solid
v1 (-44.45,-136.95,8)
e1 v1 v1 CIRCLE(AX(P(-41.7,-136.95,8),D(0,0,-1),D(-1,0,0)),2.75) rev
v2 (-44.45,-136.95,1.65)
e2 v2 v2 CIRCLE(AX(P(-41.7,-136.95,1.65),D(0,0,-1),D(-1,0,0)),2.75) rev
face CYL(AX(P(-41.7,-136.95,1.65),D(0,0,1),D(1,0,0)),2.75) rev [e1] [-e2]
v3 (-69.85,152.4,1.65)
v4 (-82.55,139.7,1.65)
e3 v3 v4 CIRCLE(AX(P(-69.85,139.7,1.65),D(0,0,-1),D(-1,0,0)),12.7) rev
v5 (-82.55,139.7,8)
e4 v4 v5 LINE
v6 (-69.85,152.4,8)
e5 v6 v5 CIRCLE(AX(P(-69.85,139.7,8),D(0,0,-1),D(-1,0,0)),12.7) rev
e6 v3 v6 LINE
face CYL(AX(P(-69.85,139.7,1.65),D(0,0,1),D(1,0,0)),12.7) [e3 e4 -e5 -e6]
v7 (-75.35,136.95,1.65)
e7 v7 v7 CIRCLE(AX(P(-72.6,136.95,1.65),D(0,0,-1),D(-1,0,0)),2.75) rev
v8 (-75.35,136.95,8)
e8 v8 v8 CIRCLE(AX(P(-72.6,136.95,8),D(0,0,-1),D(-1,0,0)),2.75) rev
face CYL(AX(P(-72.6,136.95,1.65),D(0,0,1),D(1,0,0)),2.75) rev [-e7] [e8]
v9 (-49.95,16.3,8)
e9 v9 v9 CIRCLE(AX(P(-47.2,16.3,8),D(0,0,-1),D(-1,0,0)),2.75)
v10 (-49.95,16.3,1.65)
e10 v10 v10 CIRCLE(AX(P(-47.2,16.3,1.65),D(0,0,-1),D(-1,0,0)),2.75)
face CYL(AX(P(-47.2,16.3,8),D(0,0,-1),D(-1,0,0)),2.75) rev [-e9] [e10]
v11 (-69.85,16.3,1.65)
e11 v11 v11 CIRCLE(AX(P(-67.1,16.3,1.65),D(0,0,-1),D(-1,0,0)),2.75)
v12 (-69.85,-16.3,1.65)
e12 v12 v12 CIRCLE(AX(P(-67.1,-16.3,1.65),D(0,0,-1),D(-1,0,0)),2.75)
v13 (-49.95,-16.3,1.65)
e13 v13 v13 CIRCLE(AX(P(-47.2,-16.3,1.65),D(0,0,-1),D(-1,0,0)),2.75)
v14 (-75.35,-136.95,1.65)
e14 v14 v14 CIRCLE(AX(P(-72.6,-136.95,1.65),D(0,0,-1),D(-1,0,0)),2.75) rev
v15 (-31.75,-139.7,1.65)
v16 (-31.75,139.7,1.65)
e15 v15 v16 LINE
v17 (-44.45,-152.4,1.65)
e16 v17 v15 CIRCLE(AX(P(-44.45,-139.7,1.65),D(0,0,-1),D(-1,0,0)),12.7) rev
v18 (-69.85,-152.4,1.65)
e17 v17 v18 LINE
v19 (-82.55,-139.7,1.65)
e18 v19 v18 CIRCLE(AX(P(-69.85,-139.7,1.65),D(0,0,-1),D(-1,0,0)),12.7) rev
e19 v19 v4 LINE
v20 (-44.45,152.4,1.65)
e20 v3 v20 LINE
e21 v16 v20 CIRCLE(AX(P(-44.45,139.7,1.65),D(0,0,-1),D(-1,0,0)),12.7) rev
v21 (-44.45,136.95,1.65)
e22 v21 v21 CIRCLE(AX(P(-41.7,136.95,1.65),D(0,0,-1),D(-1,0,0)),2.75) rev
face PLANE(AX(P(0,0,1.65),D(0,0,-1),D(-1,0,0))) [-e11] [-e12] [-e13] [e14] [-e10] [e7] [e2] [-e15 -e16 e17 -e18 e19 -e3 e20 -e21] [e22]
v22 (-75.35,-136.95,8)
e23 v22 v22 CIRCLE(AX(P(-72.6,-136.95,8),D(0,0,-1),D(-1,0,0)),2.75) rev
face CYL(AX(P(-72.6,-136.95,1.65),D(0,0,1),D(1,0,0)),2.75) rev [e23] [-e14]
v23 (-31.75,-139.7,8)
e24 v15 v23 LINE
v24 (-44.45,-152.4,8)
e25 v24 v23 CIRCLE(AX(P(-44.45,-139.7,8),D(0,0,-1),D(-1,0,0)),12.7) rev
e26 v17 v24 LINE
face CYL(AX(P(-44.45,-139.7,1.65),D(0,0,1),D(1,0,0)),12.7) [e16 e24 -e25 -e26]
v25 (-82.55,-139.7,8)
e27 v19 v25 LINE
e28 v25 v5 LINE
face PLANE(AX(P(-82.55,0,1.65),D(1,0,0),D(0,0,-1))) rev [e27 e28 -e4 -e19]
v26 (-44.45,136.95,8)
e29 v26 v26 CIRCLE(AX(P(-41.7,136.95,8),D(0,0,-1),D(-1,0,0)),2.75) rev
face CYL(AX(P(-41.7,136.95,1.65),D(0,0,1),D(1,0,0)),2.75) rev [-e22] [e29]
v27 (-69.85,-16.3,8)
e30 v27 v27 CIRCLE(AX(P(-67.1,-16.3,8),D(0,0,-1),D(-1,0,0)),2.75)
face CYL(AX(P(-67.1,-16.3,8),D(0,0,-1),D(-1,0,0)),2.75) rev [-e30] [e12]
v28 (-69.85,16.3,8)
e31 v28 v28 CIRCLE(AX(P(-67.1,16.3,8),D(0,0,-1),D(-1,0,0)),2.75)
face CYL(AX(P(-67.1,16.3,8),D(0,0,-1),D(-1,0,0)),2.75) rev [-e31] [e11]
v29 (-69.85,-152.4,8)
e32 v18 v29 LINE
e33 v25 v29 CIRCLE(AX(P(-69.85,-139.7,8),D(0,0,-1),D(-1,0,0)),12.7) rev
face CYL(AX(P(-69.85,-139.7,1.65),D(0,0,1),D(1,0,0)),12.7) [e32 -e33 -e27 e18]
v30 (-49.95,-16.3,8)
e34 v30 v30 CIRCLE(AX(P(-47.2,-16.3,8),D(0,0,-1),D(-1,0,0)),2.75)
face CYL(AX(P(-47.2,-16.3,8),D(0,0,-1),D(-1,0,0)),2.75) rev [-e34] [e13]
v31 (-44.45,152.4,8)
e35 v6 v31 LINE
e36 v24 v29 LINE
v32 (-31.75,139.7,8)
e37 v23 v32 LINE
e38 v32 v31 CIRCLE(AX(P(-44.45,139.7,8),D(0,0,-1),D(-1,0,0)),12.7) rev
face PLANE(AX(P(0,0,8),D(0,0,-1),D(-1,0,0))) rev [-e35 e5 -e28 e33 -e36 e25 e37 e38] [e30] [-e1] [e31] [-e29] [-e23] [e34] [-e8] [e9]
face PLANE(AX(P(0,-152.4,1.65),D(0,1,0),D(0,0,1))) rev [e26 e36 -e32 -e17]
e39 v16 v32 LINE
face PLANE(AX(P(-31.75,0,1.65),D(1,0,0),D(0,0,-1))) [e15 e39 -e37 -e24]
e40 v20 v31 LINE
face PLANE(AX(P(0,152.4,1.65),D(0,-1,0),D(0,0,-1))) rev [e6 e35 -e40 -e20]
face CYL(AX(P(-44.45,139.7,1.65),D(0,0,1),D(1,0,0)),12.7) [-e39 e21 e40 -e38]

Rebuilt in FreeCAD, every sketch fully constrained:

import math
import FreeCAD as App
import Part
import Sketcher
Q = App.Units.Quantity


def add_polygon(sketch, points):
    """Adds a closed chain of lines whose ends are joined by coincident constraints."""
    first, n = sketch.GeometryCount, len(points)
    for a, b in zip(points, points[1:] + points[:1]):
        sketch.addGeometry(Part.LineSegment(App.Vector(*a, 0), App.Vector(*b, 0)), False)
    for i in range(n):
        sketch.addConstraint(Sketcher.Constraint("Coincident", first + i, 2, first + (i + 1) % n, 1))

doc = App.newDocument("Part")
params = doc.addObject("Spreadsheet::Sheet", "Params")
for row, (alias, value) in enumerate([
    ("sketch1_radius", "0.5 in"),
    ("sketch1_width", "1 in"),
    ("sketch1_height", "11 in"),
    ("sketch1_width2", "0.6 in"),
    ("pad1_length", "0.25 in"),
    ("sketch3_height", "11 in"),
    ("sketch3_width", "0.6 in"),
    ("pad2_length", "0.25 in"),
], start=1):
    params.set(f"A{row}", alias)
    params.set(f"B{row}", "=" + value)
    params.setAlias(f"B{row}", alias)

body = doc.addObject("PartDesign::Body", "Body")

sketch1 = doc.addObject("Sketcher::SketchObject", "Sketch")
body.addObject(sketch1)
sketch1.AttachmentSupport = (doc.XY_Plane, [""])
sketch1.MapMode = "FlatFace"
sketch1.AttachmentOffset = App.Placement(App.Vector(0, 0, 8), App.Rotation())
sketch1.addGeometry(Part.LineSegment(App.Vector(-69.8, -152.4, 0), App.Vector(-44.5, -152.4, 0)), False)
sketch1.addGeometry(Part.ArcOfCircle(Part.Circle(App.Vector(-44.5, -139.7, 0), App.Vector(0, 0, 1), 12.7), math.radians(-90), math.radians(0)), False)
sketch1.addGeometry(Part.LineSegment(App.Vector(-31.8, -139.7, 0), App.Vector(-31.8, 139.7, 0)), False)
sketch1.addGeometry(Part.ArcOfCircle(Part.Circle(App.Vector(-44.5, 139.7, 0), App.Vector(0, 0, 1), 12.7), math.radians(0), math.radians(90)), False)
sketch1.addGeometry(Part.LineSegment(App.Vector(-44.5, 152.4, 0), App.Vector(-69.8, 152.4, 0)), False)
sketch1.addGeometry(Part.ArcOfCircle(Part.Circle(App.Vector(-69.8, 139.7, 0), App.Vector(0, 0, 1), 12.7), math.radians(90), math.radians(180)), False)
sketch1.addGeometry(Part.LineSegment(App.Vector(-82.5, 139.7, 0), App.Vector(-82.5, -139.7, 0)), False)
sketch1.addGeometry(Part.ArcOfCircle(Part.Circle(App.Vector(-69.8, -139.7, 0), App.Vector(0, 0, 1), 12.7), math.radians(180), math.radians(270)), False)
sketch1.addGeometry(Part.ArcOfCircle(Part.Circle(App.Vector(-69.8, -139.7, 0), App.Vector(0, 0, 1), 2.8), math.radians(90), math.radians(180)), False)
sketch1.addGeometry(Part.ArcOfCircle(Part.Circle(App.Vector(-72.6, -136.9, 0), App.Vector(0, 0, 1), 2.8), math.radians(0), math.radians(270)), False)
sketch1.addGeometry(Part.ArcOfCircle(Part.Circle(App.Vector(-44.5, -139.7, 0), App.Vector(0, 0, 1), 2.8), math.radians(0), math.radians(90)), False)
sketch1.addGeometry(Part.ArcOfCircle(Part.Circle(App.Vector(-41.7, -136.9, 0), App.Vector(0, 0, 1), 2.8), math.radians(-90), math.radians(180)), False)
add_polygon(sketch1, [(-49.5, -139.7), (-64.8, -139.7), (-64.8, 139.7), (-49.5, 139.7)])
sketch1.addGeometry(Part.ArcOfCircle(Part.Circle(App.Vector(-69.8, 139.7, 0), App.Vector(0, 0, 1), 2.8), math.radians(-180), math.radians(-90)), False)
sketch1.addGeometry(Part.ArcOfCircle(Part.Circle(App.Vector(-72.6, 136.9, 0), App.Vector(0, 0, 1), 2.8), math.radians(90), math.radians(360)), False)
sketch1.addGeometry(Part.ArcOfCircle(Part.Circle(App.Vector(-44.5, 139.7, 0), App.Vector(0, 0, 1), 2.8), math.radians(-90), math.radians(0)), False)
sketch1.addGeometry(Part.ArcOfCircle(Part.Circle(App.Vector(-41.7, 136.9, 0), App.Vector(0, 0, 1), 2.8), math.radians(180), math.radians(450)), False)
sketch1.addConstraint([
    Sketcher.Constraint("Tangent", 0, 2, 1, 1),
    Sketcher.Constraint("Tangent", 1, 2, 2, 1),
    Sketcher.Constraint("Tangent", 2, 2, 3, 1),
    Sketcher.Constraint("Tangent", 3, 2, 4, 1),
    Sketcher.Constraint("Tangent", 4, 2, 5, 1),
    Sketcher.Constraint("Tangent", 5, 2, 6, 1),
    Sketcher.Constraint("Tangent", 6, 2, 7, 1),
    Sketcher.Constraint("Tangent", 7, 2, 0, 1),
    Sketcher.Constraint("Coincident", 8, 1, 9, 1),
    Sketcher.Constraint("Coincident", 9, 2, 8, 2),
    Sketcher.Constraint("Coincident", 10, 1, 11, 1),
    Sketcher.Constraint("Coincident", 11, 2, 10, 2),
    Sketcher.Constraint("Coincident", 16, 1, 17, 1),
    Sketcher.Constraint("Coincident", 17, 2, 16, 2),
    Sketcher.Constraint("Coincident", 18, 1, 19, 1),
    Sketcher.Constraint("Coincident", 19, 2, 18, 2),
    Sketcher.Constraint("Horizontal", 0),
    Sketcher.Constraint("Vertical", 2),
    Sketcher.Constraint("Horizontal", 4),
    Sketcher.Constraint("Vertical", 6),
    Sketcher.Constraint("Horizontal", 12),
    Sketcher.Constraint("Vertical", 13),
    Sketcher.Constraint("Horizontal", 14),
    Sketcher.Constraint("Vertical", 15),
    Sketcher.Constraint("Coincident", 8, 3, 7, 3),
    Sketcher.Constraint("Coincident", 10, 3, 1, 3),
    Sketcher.Constraint("Coincident", 16, 3, 5, 3),
    Sketcher.Constraint("Coincident", 18, 3, 3, 3),
    Sketcher.Constraint("Equal", 1, 3),
    Sketcher.Constraint("Equal", 3, 5),
    Sketcher.Constraint("Equal", 5, 7),
    Sketcher.Constraint("Equal", 8, 9),
    Sketcher.Constraint("Equal", 9, 10),
    Sketcher.Constraint("Equal", 10, 11),
    Sketcher.Constraint("Equal", 11, 16),
    Sketcher.Constraint("Equal", 16, 17),
    Sketcher.Constraint("Equal", 17, 18),
    Sketcher.Constraint("Equal", 18, 19),
    Sketcher.Constraint("Symmetric", 9, 3, 17, 3, -1),
    Sketcher.Constraint("Symmetric", 11, 3, 19, 3, -1),
    Sketcher.Constraint("Horizontal", 9, 3, 11, 3),
    Sketcher.Constraint("Horizontal", 11, 3, 8, 1),
    Sketcher.Constraint("Horizontal", 10, 1, 12, 2),
    Sketcher.Constraint("Horizontal", 5, 2, 13, 2),
    Sketcher.Constraint("Horizontal", 14, 2, 16, 1),
    Sketcher.Constraint("Vertical", 7, 2, 8, 1),
    Sketcher.Constraint("Vertical", 19, 3, 10, 1),
    Sketcher.Constraint("Radius", 1, Q("0.5 in")),
    Sketcher.Constraint("DistanceX", 0, 1, 0, 2, Q("1 in")),
    Sketcher.Constraint("DistanceY", 2, 1, 2, 2, Q("11 in")),
    Sketcher.Constraint("DistanceX", 12, 2, 12, 1, Q("0.6 in")),
    Sketcher.Constraint("DistanceX", 8, 3, 12, 2, Q("0.2 in")),
    Sketcher.Constraint("DistanceX", 1, 3, -1, 1, Q("1.75 in")),
    Sketcher.Constraint("Radius", 8, 2.75),
])
sketch1.setExpression("Constraints[51]", "Params.sketch1_radius")
sketch1.setExpression("Constraints[52]", "Params.sketch1_width")
sketch1.setExpression("Constraints[53]", "Params.sketch1_height")
sketch1.setExpression("Constraints[54]", "Params.sketch1_width2")
pad1 = doc.addObject("PartDesign::Pad", "Pad")
body.addObject(pad1)
pad1.Profile = sketch1
pad1.setExpression("Length", "Params.pad1_length")
pad1.Reversed = True

sketch2 = doc.addObject("Sketcher::SketchObject", "Sketch001")
body.addObject(sketch2)
sketch2.AttachmentSupport = (doc.XY_Plane, [""])
sketch2.MapMode = "FlatFace"
sketch2.AttachmentOffset = App.Placement(App.Vector(0, 0, 8), App.Rotation())
sketch2.addGeometry([
    Part.Circle(App.Vector(-41.7, 136.9, 0), App.Vector(0, 0, 1), 2.8),
    Part.Circle(App.Vector(-72.6, 136.9, 0), App.Vector(0, 0, 1), 2.8),
    Part.Circle(App.Vector(-41.7, -136.9, 0), App.Vector(0, 0, 1), 2.8),
    Part.Circle(App.Vector(-72.6, -136.9, 0), App.Vector(0, 0, 1), 2.8),
], False)
sketch2.addConstraint([
    Sketcher.Constraint("Equal", 0, 1),
    Sketcher.Constraint("Equal", 1, 2),
    Sketcher.Constraint("Equal", 2, 3),
    Sketcher.Constraint("Symmetric", 0, 3, 2, 3, -1),
    Sketcher.Constraint("Symmetric", 1, 3, 3, 3, -1),
    Sketcher.Constraint("Horizontal", 0, 3, 1, 3),
    Sketcher.Constraint("Diameter", 0, 5.5),
    Sketcher.Constraint("DistanceX", 0, 3, -1, 1, 41.7),
    Sketcher.Constraint("DistanceY", -1, 1, 0, 3, 136.95),
    Sketcher.Constraint("DistanceX", 1, 3, -1, 1, 72.6),
])
pocket1 = doc.addObject("PartDesign::Pocket", "Pocket")
body.addObject(pocket1)
pocket1.Profile = sketch2
pocket1.Type = "ThroughAll"

sketch3 = doc.addObject("Sketcher::SketchObject", "Sketch002")
body.addObject(sketch3)
sketch3.AttachmentSupport = (doc.XY_Plane, [""])
sketch3.MapMode = "FlatFace"
sketch3.AttachmentOffset = App.Placement(App.Vector(0, 0, 8), App.Rotation())
add_polygon(sketch3, [(-65, 140), (-65, -140), (-50, -140), (-50, 140)])
sketch3.addConstraint([
    Sketcher.Constraint("Vertical", 0),
    Sketcher.Constraint("Horizontal", 1),
    Sketcher.Constraint("Vertical", 2),
    Sketcher.Constraint("Horizontal", 3),
    Sketcher.Constraint("DistanceY", 0, 2, 0, 1, Q("11 in")),
    Sketcher.Constraint("DistanceX", 1, 1, 1, 2, Q("0.6 in")),
    Sketcher.Constraint("DistanceY", 0, 2, -1, 1, Q("5.5 in")),
    Sketcher.Constraint("DistanceX", 0, 2, -1, 1, Q("2.55 in")),
])
sketch3.setExpression("Constraints[8]", "Params.sketch3_height")
sketch3.setExpression("Constraints[9]", "Params.sketch3_width")
pad2 = doc.addObject("PartDesign::Pad", "Pad001")
body.addObject(pad2)
pad2.Profile = sketch3
pad2.setExpression("Length", "Params.pad2_length")
pad2.Reversed = True

sketch4 = doc.addObject("Sketcher::SketchObject", "Sketch003")
body.addObject(sketch4)
sketch4.AttachmentSupport = (doc.XY_Plane, [""])
sketch4.MapMode = "FlatFace"
sketch4.AttachmentOffset = App.Placement(App.Vector(0, 0, 1.65), App.Rotation())
sketch4.addGeometry([
    Part.Circle(App.Vector(-47.2, 16.3, 0), App.Vector(0, 0, 1), 2.8),
    Part.Circle(App.Vector(-67.1, 16.3, 0), App.Vector(0, 0, 1), 2.8),
    Part.Circle(App.Vector(-47.2, -16.3, 0), App.Vector(0, 0, 1), 2.8),
    Part.Circle(App.Vector(-67.1, -16.3, 0), App.Vector(0, 0, 1), 2.8),
], False)
sketch4.addConstraint([
    Sketcher.Constraint("Equal", 0, 1),
    Sketcher.Constraint("Equal", 1, 2),
    Sketcher.Constraint("Equal", 2, 3),
    Sketcher.Constraint("Symmetric", 0, 3, 2, 3, -1),
    Sketcher.Constraint("Symmetric", 1, 3, 3, 3, -1),
    Sketcher.Constraint("Horizontal", 0, 3, 1, 3),
    Sketcher.Constraint("Diameter", 0, 5.5),
    Sketcher.Constraint("DistanceX", 0, 3, -1, 1, 47.2),
    Sketcher.Constraint("DistanceY", -1, 1, 0, 3, 16.3),
    Sketcher.Constraint("DistanceX", 1, 3, -1, 1, 67.1),
])
pocket2 = doc.addObject("PartDesign::Pocket", "Pocket001")
body.addObject(pocket2)
pocket2.Profile = sketch4
pocket2.Type = "ThroughAll"
pocket2.Midplane = True

doc.recompute()
